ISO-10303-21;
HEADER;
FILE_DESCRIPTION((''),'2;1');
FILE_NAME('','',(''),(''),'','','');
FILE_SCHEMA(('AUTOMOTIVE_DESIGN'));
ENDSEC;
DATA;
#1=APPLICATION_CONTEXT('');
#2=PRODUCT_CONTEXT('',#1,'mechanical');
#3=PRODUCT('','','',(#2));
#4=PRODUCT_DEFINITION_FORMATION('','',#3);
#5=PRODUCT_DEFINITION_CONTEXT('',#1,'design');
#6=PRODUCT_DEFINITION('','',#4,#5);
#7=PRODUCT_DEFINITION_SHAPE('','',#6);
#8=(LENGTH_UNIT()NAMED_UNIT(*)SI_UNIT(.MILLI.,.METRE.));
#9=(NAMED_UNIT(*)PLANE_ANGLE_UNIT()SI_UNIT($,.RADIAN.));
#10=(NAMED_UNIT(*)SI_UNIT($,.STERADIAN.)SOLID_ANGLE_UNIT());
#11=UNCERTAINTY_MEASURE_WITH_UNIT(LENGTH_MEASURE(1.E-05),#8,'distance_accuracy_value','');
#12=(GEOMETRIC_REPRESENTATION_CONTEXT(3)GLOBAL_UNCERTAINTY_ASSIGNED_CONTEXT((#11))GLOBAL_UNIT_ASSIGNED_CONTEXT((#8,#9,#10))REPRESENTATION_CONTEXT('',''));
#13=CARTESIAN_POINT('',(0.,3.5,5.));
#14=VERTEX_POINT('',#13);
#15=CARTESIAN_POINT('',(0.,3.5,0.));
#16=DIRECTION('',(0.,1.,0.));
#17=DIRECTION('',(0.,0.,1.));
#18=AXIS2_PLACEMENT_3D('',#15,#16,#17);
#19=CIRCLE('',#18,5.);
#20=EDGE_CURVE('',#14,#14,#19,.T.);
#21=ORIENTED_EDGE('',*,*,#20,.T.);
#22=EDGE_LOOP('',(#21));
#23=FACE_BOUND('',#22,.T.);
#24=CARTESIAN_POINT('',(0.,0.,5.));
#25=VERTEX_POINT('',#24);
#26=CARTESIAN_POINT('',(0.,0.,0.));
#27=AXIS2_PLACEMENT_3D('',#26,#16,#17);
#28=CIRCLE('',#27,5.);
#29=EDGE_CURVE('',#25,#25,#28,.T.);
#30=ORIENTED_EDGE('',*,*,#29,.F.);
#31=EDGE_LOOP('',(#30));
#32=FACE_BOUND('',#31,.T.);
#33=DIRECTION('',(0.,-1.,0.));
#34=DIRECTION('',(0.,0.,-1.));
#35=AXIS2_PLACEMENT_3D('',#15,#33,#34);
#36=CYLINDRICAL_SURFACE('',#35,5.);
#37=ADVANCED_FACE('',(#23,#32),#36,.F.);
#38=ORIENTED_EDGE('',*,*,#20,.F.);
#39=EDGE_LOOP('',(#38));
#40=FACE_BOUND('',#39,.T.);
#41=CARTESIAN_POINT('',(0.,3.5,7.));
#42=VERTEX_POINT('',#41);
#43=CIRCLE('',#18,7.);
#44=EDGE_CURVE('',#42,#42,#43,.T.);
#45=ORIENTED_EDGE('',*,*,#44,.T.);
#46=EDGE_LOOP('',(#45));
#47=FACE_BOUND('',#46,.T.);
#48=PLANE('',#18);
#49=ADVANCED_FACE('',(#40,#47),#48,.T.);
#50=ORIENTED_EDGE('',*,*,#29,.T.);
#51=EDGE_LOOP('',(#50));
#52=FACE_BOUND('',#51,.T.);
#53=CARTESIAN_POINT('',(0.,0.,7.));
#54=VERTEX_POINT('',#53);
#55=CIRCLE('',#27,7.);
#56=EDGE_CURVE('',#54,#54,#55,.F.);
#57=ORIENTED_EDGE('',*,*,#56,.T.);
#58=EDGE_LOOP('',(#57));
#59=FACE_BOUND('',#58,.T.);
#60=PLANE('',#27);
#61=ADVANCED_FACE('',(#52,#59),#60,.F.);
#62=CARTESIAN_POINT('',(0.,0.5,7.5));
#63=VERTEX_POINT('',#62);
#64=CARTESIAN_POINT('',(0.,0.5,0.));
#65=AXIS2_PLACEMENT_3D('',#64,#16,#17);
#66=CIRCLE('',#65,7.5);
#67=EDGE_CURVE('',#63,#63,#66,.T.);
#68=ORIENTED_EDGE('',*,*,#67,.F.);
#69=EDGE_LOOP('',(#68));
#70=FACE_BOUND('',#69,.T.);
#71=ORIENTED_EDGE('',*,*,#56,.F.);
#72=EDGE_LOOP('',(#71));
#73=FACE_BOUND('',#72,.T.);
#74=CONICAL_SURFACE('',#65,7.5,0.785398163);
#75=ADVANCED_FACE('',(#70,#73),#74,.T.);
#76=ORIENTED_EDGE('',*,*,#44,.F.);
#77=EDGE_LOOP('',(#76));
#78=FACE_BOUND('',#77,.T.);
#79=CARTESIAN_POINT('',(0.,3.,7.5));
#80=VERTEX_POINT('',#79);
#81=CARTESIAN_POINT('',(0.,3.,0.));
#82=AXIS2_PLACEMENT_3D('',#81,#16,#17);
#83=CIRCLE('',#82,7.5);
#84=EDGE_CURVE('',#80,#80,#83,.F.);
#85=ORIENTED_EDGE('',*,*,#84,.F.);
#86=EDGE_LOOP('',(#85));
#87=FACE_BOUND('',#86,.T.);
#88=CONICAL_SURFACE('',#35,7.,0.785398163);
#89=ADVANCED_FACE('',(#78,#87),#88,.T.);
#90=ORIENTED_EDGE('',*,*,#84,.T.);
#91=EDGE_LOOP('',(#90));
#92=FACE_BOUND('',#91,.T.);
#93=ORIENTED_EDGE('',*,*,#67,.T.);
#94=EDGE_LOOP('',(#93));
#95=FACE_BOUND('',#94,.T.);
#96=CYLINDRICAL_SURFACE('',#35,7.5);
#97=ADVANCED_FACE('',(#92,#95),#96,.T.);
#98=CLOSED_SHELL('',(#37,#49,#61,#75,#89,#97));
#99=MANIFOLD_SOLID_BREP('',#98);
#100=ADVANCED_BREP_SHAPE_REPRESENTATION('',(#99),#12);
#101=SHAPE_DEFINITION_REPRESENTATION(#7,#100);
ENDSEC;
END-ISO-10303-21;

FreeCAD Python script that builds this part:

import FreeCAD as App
import Part
import Sketcher
from FreeCAD import Vector
Q = App.Units.Quantity


def edges_at(feature, points):
    """Names of the edges that pass closest to the given points."""
    edges = feature.Shape.Edges
    near = lambda p: min(range(len(edges)), key=lambda i: edges[i].distToShape(Part.Vertex(*p))[0])
    return sorted({f"Edge{near(p) + 1}" for p in points})

doc = App.newDocument("Part")
body = doc.addObject("PartDesign::Body", "Body")

# Sketch on XZ plane
sketch1 = doc.addObject("Sketcher::SketchObject", "Sketch")
body.addObject(sketch1)
sketch1.AttachmentSupport = (doc.XZ_Plane, [""])
sketch1.MapMode = "FlatFace"
sketch1.addGeometry([
    Part.Circle(Vector(0, 0, 0), Vector(0, 0, 1), 8),
    Part.Circle(Vector(0, 0, 0), Vector(0, 0, 1), 5),
], False)
sketch1.addConstraint([
    Sketcher.Constraint("Coincident", 0, 3, -1, 1),
    Sketcher.Constraint("Coincident", 1, 3, -1, 1),
    Sketcher.Constraint("Diameter", 0, Q("15 mm")),
    Sketcher.Constraint("Diameter", 1, Q("10 mm")),
])
pad1 = doc.addObject("PartDesign::Pad", "Pad")
body.addObject(pad1)
pad1.Profile = sketch1
pad1.Length = 3.5
pad1.Reversed = True
doc.recompute()

chamfer = doc.addObject("PartDesign::Chamfer", "Chamfer")
body.addObject(chamfer)
chamfer.Base = (pad1, edges_at(pad1, [(0, 0, -7.5), (0, 3.5, -7.5)]))
chamfer.Size = 0.5

doc.recompute()
